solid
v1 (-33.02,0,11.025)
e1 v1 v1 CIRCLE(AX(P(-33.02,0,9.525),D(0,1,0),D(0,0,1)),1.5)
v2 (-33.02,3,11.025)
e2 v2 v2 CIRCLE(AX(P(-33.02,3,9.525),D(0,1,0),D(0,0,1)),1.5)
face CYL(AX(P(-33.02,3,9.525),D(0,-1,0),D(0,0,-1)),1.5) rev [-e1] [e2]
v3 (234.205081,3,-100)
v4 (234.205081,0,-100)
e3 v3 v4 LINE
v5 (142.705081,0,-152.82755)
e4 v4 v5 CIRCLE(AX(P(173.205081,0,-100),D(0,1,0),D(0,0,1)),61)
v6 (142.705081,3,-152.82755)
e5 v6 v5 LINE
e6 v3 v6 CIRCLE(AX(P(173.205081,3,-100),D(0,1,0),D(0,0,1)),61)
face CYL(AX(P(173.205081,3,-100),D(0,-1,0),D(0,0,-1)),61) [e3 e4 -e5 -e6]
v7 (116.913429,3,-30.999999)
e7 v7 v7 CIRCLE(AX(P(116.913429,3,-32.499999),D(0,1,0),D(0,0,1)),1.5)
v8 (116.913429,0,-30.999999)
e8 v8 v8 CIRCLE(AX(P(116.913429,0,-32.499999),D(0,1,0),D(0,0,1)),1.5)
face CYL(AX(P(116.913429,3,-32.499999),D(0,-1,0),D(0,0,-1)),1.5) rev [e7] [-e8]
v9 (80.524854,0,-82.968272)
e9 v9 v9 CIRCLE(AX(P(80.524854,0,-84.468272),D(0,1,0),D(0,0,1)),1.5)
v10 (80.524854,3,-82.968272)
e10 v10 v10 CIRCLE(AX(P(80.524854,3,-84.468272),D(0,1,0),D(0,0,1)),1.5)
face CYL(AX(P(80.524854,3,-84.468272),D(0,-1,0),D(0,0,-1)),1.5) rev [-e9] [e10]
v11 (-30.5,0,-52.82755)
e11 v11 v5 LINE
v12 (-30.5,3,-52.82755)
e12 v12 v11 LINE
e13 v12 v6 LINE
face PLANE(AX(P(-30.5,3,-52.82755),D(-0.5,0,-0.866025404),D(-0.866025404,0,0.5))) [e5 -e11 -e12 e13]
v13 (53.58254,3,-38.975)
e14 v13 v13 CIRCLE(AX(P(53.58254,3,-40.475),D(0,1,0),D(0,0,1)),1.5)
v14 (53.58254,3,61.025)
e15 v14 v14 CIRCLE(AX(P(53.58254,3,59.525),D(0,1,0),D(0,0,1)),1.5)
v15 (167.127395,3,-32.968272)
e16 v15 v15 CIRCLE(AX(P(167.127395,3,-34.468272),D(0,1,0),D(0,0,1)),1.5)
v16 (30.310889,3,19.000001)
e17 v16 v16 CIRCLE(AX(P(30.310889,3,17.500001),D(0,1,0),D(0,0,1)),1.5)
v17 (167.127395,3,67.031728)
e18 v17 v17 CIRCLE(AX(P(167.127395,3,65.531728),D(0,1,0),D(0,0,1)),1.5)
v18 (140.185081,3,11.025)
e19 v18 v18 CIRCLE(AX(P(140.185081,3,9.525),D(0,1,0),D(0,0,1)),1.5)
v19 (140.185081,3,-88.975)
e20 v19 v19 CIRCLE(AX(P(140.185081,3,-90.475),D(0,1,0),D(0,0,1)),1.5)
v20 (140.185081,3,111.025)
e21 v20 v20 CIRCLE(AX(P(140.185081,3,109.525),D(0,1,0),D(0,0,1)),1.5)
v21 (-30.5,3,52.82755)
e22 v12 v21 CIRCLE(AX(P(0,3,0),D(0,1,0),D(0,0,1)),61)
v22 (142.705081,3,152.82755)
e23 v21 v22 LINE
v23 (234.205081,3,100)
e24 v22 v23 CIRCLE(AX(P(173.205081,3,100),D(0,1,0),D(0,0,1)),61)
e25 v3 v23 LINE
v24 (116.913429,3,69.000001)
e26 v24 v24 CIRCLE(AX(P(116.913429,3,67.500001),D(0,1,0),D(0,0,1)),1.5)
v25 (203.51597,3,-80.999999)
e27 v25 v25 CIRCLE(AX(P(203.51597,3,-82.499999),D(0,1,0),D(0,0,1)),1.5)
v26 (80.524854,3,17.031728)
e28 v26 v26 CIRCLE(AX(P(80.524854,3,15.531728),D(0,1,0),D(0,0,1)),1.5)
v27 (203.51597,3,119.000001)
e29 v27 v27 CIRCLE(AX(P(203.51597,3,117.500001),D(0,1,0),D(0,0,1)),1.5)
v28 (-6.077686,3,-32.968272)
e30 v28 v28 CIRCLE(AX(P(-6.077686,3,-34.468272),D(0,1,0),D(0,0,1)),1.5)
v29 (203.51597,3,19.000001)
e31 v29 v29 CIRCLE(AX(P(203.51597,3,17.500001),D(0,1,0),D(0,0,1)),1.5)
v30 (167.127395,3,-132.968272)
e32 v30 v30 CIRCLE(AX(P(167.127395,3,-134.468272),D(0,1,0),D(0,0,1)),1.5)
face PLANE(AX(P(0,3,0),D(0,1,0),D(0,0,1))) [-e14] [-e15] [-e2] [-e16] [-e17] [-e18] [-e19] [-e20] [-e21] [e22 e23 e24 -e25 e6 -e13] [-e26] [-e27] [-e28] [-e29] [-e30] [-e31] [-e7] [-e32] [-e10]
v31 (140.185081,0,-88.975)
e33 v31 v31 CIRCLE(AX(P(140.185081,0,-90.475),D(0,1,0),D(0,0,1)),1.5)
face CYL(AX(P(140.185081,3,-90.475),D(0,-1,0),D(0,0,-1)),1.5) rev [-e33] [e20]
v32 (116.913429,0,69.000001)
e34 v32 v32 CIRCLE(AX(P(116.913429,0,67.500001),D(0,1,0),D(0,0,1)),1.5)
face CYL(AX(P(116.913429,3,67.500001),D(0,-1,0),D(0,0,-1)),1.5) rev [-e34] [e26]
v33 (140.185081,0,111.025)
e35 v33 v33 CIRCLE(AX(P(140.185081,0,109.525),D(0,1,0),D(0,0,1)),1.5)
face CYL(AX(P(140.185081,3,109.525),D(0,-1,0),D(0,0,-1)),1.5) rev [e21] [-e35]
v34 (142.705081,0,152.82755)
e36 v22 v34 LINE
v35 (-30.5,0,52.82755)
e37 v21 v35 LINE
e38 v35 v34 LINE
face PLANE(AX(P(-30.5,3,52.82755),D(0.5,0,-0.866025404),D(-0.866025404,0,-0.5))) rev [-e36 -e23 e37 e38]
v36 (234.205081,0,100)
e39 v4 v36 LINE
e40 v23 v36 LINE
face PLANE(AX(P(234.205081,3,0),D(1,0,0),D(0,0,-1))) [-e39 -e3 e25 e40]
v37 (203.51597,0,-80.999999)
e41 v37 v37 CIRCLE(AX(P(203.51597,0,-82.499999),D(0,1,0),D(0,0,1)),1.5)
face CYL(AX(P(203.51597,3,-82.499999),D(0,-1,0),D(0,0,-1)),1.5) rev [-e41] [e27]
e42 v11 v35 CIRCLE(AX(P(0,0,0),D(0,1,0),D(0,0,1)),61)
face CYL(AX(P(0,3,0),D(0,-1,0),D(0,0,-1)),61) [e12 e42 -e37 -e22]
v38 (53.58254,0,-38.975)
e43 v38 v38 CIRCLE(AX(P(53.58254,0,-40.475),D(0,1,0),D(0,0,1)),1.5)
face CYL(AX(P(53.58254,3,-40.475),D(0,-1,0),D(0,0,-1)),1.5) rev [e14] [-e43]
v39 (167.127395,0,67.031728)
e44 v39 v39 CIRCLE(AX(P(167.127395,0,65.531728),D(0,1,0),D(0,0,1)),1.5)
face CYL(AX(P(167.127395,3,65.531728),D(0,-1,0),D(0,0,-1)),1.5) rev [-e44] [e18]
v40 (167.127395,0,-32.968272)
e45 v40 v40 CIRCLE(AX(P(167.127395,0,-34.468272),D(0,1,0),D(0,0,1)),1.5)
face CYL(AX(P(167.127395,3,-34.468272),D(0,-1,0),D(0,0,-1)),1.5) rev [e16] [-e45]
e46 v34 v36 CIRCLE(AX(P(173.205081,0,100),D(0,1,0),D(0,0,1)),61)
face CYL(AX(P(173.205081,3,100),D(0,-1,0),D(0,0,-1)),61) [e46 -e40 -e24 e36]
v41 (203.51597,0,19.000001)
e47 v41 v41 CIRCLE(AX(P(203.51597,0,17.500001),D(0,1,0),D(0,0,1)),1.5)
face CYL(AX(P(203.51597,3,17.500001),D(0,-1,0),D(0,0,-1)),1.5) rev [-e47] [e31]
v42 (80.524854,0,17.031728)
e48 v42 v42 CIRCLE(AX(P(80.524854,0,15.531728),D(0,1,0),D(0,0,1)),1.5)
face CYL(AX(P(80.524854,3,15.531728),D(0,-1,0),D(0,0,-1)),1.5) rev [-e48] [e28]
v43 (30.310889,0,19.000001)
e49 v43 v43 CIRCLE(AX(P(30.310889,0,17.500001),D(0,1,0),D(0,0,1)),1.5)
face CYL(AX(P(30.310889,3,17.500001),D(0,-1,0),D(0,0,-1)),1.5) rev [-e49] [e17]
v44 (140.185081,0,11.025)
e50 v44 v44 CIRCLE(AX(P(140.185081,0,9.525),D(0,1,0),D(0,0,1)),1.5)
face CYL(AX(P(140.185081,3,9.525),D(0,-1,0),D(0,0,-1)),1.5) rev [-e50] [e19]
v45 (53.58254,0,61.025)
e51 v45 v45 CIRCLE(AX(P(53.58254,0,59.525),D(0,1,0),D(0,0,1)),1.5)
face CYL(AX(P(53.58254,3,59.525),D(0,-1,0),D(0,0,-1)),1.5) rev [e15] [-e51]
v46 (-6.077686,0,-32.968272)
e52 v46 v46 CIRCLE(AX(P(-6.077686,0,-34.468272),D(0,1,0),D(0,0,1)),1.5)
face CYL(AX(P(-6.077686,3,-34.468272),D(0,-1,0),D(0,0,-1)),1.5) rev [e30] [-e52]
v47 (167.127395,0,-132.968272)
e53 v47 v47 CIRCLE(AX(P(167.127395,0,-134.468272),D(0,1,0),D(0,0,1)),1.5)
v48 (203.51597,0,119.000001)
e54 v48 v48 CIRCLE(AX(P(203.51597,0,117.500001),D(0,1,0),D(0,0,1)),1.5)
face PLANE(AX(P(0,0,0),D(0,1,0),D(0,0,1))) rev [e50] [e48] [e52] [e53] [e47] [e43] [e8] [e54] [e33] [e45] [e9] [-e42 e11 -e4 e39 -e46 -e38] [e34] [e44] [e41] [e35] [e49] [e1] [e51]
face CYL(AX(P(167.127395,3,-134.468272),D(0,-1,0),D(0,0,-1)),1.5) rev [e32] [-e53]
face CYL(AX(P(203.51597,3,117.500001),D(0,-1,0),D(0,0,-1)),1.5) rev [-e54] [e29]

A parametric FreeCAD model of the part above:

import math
import FreeCAD as App
import Part
import Sketcher
Q = App.Units.Quantity

doc = App.newDocument("Part")
body = doc.addObject("PartDesign::Body", "Body")

# Sketch on XZ plane
sketch1 = doc.addObject("Sketcher::SketchObject", "Sketch")
body.addObject(sketch1)
sketch1.AttachmentSupport = (doc.XZ_Plane, [""])
sketch1.MapMode = "FlatFace"
sketch1.addGeometry(Part.LineSegment(App.Vector(234.2, 100, 0), App.Vector(234.2, -100, 0)), False)
sketch1.addGeometry(Part.ArcOfCircle(Part.Circle(App.Vector(173.2, -100, 0), App.Vector(0, 0, 1), 61), math.radians(-120), math.radians(0)), False)
sketch1.addGeometry(Part.LineSegment(App.Vector(142.7, -152.8, 0), App.Vector(-30.5, -52.8, 0)), False)
sketch1.addGeometry(Part.ArcOfCircle(Part.Circle(App.Vector(0, 0, 0), App.Vector(0, 0, 1), 61), math.radians(120), math.radians(240)), False)
sketch1.addGeometry(Part.LineSegment(App.Vector(-30.5, 52.8, 0), App.Vector(142.7, 152.8, 0)), False)
sketch1.addGeometry(Part.ArcOfCircle(Part.Circle(App.Vector(173.2, 100, 0), App.Vector(0, 0, 1), 61), math.radians(0), math.radians(120)), False)
sketch1.addGeometry(Part.Circle(App.Vector(53.6, 59.5, 0), App.Vector(0, 0, 1), 1.5), False)
sketch1.addGeometry(Part.Circle(App.Vector(-33, 9.5, 0), App.Vector(0, 0, 1), 1.5), False)
sketch1.addGeometry(Part.Circle(App.Vector(30.3, 17.5, 0), App.Vector(0, 0, 1), 1.5), False)
sketch1.addGeometry(Part.Circle(App.Vector(80.5, 15.5, 0), App.Vector(0, 0, 1), 1.5), False)
sketch1.addGeometry(Part.Circle(App.Vector(140.2, 109.5, 0), App.Vector(0, 0, 1), 1.5), False)
sketch1.addGeometry(Part.Circle(App.Vector(116.9, 67.5, 0), App.Vector(0, 0, 1), 1.5), False)
sketch1.addGeometry(Part.Circle(App.Vector(203.5, 117.5, 0), App.Vector(0, 0, 1), 1.5), False)
sketch1.addGeometry(Part.Circle(App.Vector(167.1, 65.5, 0), App.Vector(0, 0, 1), 1.5), False)
sketch1.addGeometry(Part.Circle(App.Vector(140.2, 9.5, 0), App.Vector(0, 0, 1), 1.5), False)
sketch1.addGeometry(Part.Circle(App.Vector(203.5, 17.5, 0), App.Vector(0, 0, 1), 1.5), False)
sketch1.addGeometry(Part.Circle(App.Vector(-6.1, -34.5, 0), App.Vector(0, 0, 1), 1.5), False)
sketch1.addGeometry(Part.Circle(App.Vector(53.6, -40.5, 0), App.Vector(0, 0, 1), 1.5), False)
sketch1.addGeometry(Part.Circle(App.Vector(80.5, -84.5, 0), App.Vector(0, 0, 1), 1.5), False)
sketch1.addGeometry(Part.Circle(App.Vector(116.9, -32.5, 0), App.Vector(0, 0, 1), 1.5), False)
sketch1.addGeometry(Part.Circle(App.Vector(167.1, -34.5, 0), App.Vector(0, 0, 1), 1.5), False)
sketch1.addGeometry(Part.Circle(App.Vector(140.2, -90.5, 0), App.Vector(0, 0, 1), 1.5), False)
sketch1.addGeometry(Part.Circle(App.Vector(203.5, -82.5, 0), App.Vector(0, 0, 1), 1.5), False)
sketch1.addGeometry(Part.Circle(App.Vector(167.1, -134.5, 0), App.Vector(0, 0, 1), 1.5), False)
sketch1.addConstraint(Sketcher.Constraint("Tangent", 0, 2, 1, 2))
sketch1.addConstraint(Sketcher.Constraint("Tangent", 1, 1, 2, 1))
sketch1.addConstraint(Sketcher.Constraint("Tangent", 2, 2, 3, 2))
sketch1.addConstraint(Sketcher.Constraint("Tangent", 3, 1, 4, 1))
sketch1.addConstraint(Sketcher.Constraint("Tangent", 4, 2, 5, 2))
sketch1.addConstraint(Sketcher.Constraint("Tangent", 5, 1, 0, 1))
sketch1.addConstraint(Sketcher.Constraint("Vertical", 0))
sketch1.addConstraint(Sketcher.Constraint("Coincident", 3, 3, -1, 1))
sketch1.addConstraint(Sketcher.Constraint("Equal", 1, 3))
sketch1.addConstraint(Sketcher.Constraint("Equal", 3, 5))
sketch1.addConstraint(Sketcher.Constraint("Equal", 6, 7))
sketch1.addConstraint(Sketcher.Constraint("Equal", 7, 8))
sketch1.addConstraint(Sketcher.Constraint("Equal", 8, 9))
sketch1.addConstraint(Sketcher.Constraint("Equal", 9, 10))
sketch1.addConstraint(Sketcher.Constraint("Equal", 10, 11))
sketch1.addConstraint(Sketcher.Constraint("Equal", 11, 12))
sketch1.addConstraint(Sketcher.Constraint("Equal", 12, 13))
sketch1.addConstraint(Sketcher.Constraint("Equal", 13, 14))
sketch1.addConstraint(Sketcher.Constraint("Equal", 14, 15))
sketch1.addConstraint(Sketcher.Constraint("Equal", 15, 16))
sketch1.addConstraint(Sketcher.Constraint("Equal", 16, 17))
sketch1.addConstraint(Sketcher.Constraint("Equal", 17, 18))
sketch1.addConstraint(Sketcher.Constraint("Equal", 18, 19))
sketch1.addConstraint(Sketcher.Constraint("Equal", 19, 20))
sketch1.addConstraint(Sketcher.Constraint("Equal", 20, 21))
sketch1.addConstraint(Sketcher.Constraint("Equal", 21, 22))
sketch1.addConstraint(Sketcher.Constraint("Equal", 22, 23))
sketch1.addConstraint(Sketcher.Constraint("Horizontal", 7, 3, 14, 3))
sketch1.addConstraint(Sketcher.Constraint("Horizontal", 8, 3, 15, 3))
sketch1.addConstraint(Sketcher.Constraint("Horizontal", 16, 3, 20, 3))
sketch1.addConstraint(Sketcher.Constraint("Vertical", 10, 3, 14, 3))
sketch1.addConstraint(Sketcher.Constraint("Vertical", 12, 3, 15, 3))
sketch1.addConstraint(Sketcher.Constraint("Vertical", 6, 3, 17, 3))
sketch1.addConstraint(Sketcher.Constraint("Vertical", 9, 3, 18, 3))
sketch1.addConstraint(Sketcher.Constraint("Vertical", 11, 3, 19, 3))
sketch1.addConstraint(Sketcher.Constraint("Vertical", 13, 3, 20, 3))
sketch1.addConstraint(Sketcher.Constraint("Vertical", 14, 3, 21, 3))
sketch1.addConstraint(Sketcher.Constraint("Vertical", 15, 3, 22, 3))
sketch1.addConstraint(Sketcher.Constraint("Vertical", 20, 3, 23, 3))
sketch1.addConstraint(Sketcher.Constraint("Vertical", 2, 2, 3, 1))
sketch1.addConstraint(Sketcher.Constraint("Diameter", 6, 3.0))
sketch1.addConstraint(Sketcher.Constraint("Radius", 1, 61.0))
sketch1.addConstraint(Sketcher.Constraint("DistanceY", 0, 2, 0, 1, 200.0))
sketch1.addConstraint(Sketcher.Constraint("Angle", 2, Q("150 deg")))
sketch1.addConstraint(Sketcher.Constraint("DistanceY", 7, 3, 6, 3, 50.0))
sketch1.addConstraint(Sketcher.Constraint("DistanceY", 6, 3, 10, 3, 50.0))
sketch1.addConstraint(Sketcher.Constraint("DistanceY", 8, 3, 11, 3, 50.0))
sketch1.addConstraint(Sketcher.Constraint("DistanceY", 11, 3, 12, 3, 50.0))
sketch1.addConstraint(Sketcher.Constraint("DistanceY", 9, 3, 13, 3, 50.0))
sketch1.addConstraint(Sketcher.Constraint("DistanceY", 16, 3, 9, 3, 50.0))
sketch1.addConstraint(Sketcher.Constraint("DistanceY", 17, 3, 7, 3, 50.0))
sketch1.addConstraint(Sketcher.Constraint("DistanceY", 18, 3, 16, 3, 50.0))
sketch1.addConstraint(Sketcher.Constraint("DistanceY", 21, 3, 14, 3, 100.0))
sketch1.addConstraint(Sketcher.Constraint("DistanceY", 22, 3, 15, 3, 100.0))
sketch1.addConstraint(Sketcher.Constraint("DistanceY", 22, 3, 19, 3, 50.0))
sketch1.addConstraint(Sketcher.Constraint("DistanceY", 23, 3, 20, 3, 100.0))
sketch1.addConstraint(Sketcher.Constraint("DistanceY", -1, 1, 8, 3, 17.500001))
sketch1.addConstraint(Sketcher.Constraint("DistanceX", 7, 3, -1, 1, 33.02))
sketch1.addConstraint(Sketcher.Constraint("DistanceX", 10, 3, 5, 3, 33.02))
sketch1.addConstraint(Sketcher.Constraint("DistanceY", -1, 1, 6, 3, 59.525))
sketch1.addConstraint(Sketcher.Constraint("DistanceX", -1, 1, 6, 3, 53.58254))
sketch1.addConstraint(Sketcher.Constraint("DistanceX", -1, 1, 8, 3, 30.310889))
sketch1.addConstraint(Sketcher.Constraint("DistanceX", -1, 1, 11, 3, 116.913429))
sketch1.addConstraint(Sketcher.Constraint("DistanceX", -1, 1, 12, 3, 203.51597))
sketch1.addConstraint(Sketcher.Constraint("DistanceY", -1, 1, 13, 3, 65.531728))
sketch1.addConstraint(Sketcher.Constraint("DistanceX", 9, 3, 13, 3, 86.60254))
sketch1.addConstraint(Sketcher.Constraint("DistanceX", 16, 3, 9, 3, 86.60254))
sketch1.addConstraint(Sketcher.Constraint("DistanceX", -1, 1, 9, 3, 80.524854))
pad1 = doc.addObject("PartDesign::Pad", "Pad")
body.addObject(pad1)
pad1.Profile = sketch1
pad1.Length = 3
pad1.Reversed = True

doc.recompute()
